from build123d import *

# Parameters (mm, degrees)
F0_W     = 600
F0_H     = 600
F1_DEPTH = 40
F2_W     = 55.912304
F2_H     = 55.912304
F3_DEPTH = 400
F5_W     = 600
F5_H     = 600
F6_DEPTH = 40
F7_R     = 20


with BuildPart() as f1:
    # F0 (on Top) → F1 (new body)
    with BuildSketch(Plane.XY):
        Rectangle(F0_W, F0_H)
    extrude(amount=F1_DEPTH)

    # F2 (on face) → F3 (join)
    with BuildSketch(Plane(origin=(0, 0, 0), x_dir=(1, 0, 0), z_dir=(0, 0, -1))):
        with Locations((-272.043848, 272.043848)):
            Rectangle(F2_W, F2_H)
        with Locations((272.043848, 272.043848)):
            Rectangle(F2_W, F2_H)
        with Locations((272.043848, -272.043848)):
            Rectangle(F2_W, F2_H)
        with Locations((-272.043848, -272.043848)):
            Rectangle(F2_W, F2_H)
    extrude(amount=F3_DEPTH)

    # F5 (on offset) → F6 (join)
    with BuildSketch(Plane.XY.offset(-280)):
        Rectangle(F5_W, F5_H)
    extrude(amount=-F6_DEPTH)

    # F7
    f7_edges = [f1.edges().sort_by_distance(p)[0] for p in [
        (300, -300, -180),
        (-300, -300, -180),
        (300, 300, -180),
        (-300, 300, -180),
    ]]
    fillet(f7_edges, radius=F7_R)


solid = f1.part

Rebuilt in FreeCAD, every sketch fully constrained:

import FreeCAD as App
import Part
import Sketcher

V = App.Vector
Q = App.Units.Quantity


def edges_at(feature, points):
    """Names of the edges that pass closest to the given points."""
    edges = feature.Shape.Edges
    near = lambda p: min(range(len(edges)), key=lambda i: edges[i].distToShape(Part.Vertex(*p))[0])
    return sorted({f"Edge{near(p) + 1}" for p in points})

doc = App.newDocument("Part")
body = doc.addObject("PartDesign::Body", "Body")

# Sketch on XY plane
sketch1 = body.newObject("Sketcher::SketchObject", "Sketch")
sketch1.AttachmentSupport = (doc.getObject("XY_Plane"), [""])
sketch1.MapMode = "FlatFace"
sketch1.addGeometry([
    Part.LineSegment(V(-300, 300, 0), V(-300, -300, 0)),
    Part.LineSegment(V(-300, -300, 0), V(300, -300, 0)),
    Part.LineSegment(V(300, -300, 0), V(300, 300, 0)),
    Part.LineSegment(V(300, 300, 0), V(-300, 300, 0)),
], False)
sketch1.addConstraint([
    Sketcher.Constraint("Coincident", 0, 2, 1, 1),
    Sketcher.Constraint("Coincident", 1, 2, 2, 1),
    Sketcher.Constraint("Coincident", 2, 2, 3, 1),
    Sketcher.Constraint("Coincident", 3, 2, 0, 1),
    Sketcher.Constraint("Vertical", 0),
    Sketcher.Constraint("Horizontal", 1),
    Sketcher.Constraint("Vertical", 2),
    Sketcher.Constraint("Horizontal", 3),
    Sketcher.Constraint("Symmetric", 0, 2, 2, 2, -1, 1),
    Sketcher.Constraint("Equal", 3, 0),
    Sketcher.Constraint("DistanceX", 1, 1, 1, 2, Q("600 mm")),
])
pad1 = body.newObject("PartDesign::Pad", "Pad")
pad1.Profile = sketch1
pad1.Length = 40

# Sketch on XY plane
sketch2 = body.newObject("Sketcher::SketchObject", "Sketch001")
sketch2.AttachmentSupport = (doc.getObject("XY_Plane"), [""])
sketch2.MapMode = "FlatFace"
sketch2.addGeometry([
    Part.LineSegment(V(-300, -300, 0), V(-300, -244.087696, 0)),  # 0
    Part.LineSegment(V(-300, -244.087696, 0), V(-244.087696, -244.087696, 0)),  # 1
    Part.LineSegment(V(-244.087696, -244.087696, 0), V(-244.087696, -300, 0)),  # 2
    Part.LineSegment(V(-244.087696, -300, 0), V(-300, -300, 0)),  # 3
    Part.LineSegment(V(244.087696, -300, 0), V(244.087696, -244.087696, 0)),  # 4
    Part.LineSegment(V(244.087696, -244.087696, 0), V(300, -244.087696, 0)),  # 5
    Part.LineSegment(V(300, -244.087696, 0), V(300, -300, 0)),  # 6
    Part.LineSegment(V(300, -300, 0), V(244.087696, -300, 0)),  # 7
    Part.LineSegment(V(244.087696, 244.087696, 0), V(244.087696, 300, 0)),  # 8
    Part.LineSegment(V(244.087696, 300, 0), V(300, 300, 0)),  # 9
    Part.LineSegment(V(300, 300, 0), V(300, 244.087696, 0)),  # 10
    Part.LineSegment(V(300, 244.087696, 0), V(244.087696, 244.087696, 0)),  # 11
    Part.LineSegment(V(-300, 244.087696, 0), V(-300, 300, 0)),  # 12
    Part.LineSegment(V(-300, 300, 0), V(-244.087696, 300, 0)),  # 13
    Part.LineSegment(V(-244.087696, 300, 0), V(-244.087696, 244.087696, 0)),  # 14
    Part.LineSegment(V(-244.087696, 244.087696, 0), V(-300, 244.087696, 0)),  # 15
], False)
sketch2.addConstraint([
    Sketcher.Constraint("Coincident", 0, 2, 1, 1),
    Sketcher.Constraint("Coincident", 1, 2, 2, 1),
    Sketcher.Constraint("Coincident", 2, 2, 3, 1),
    Sketcher.Constraint("Coincident", 3, 2, 0, 1),
    Sketcher.Constraint("Coincident", 4, 2, 5, 1),
    Sketcher.Constraint("Coincident", 5, 2, 6, 1),
    Sketcher.Constraint("Coincident", 6, 2, 7, 1),
    Sketcher.Constraint("Coincident", 7, 2, 4, 1),
    Sketcher.Constraint("Coincident", 8, 2, 9, 1),
    Sketcher.Constraint("Coincident", 9, 2, 10, 1),
    Sketcher.Constraint("Coincident", 10, 2, 11, 1),
    Sketcher.Constraint("Coincident", 11, 2, 8, 1),
    Sketcher.Constraint("Coincident", 12, 2, 13, 1),
    Sketcher.Constraint("Coincident", 13, 2, 14, 1),
    Sketcher.Constraint("Coincident", 14, 2, 15, 1),
    Sketcher.Constraint("Coincident", 15, 2, 12, 1),
    Sketcher.Constraint("Vertical", 0),
    Sketcher.Constraint("Horizontal", 1),
    Sketcher.Constraint("Vertical", 2),
    Sketcher.Constraint("Horizontal", 3),
    Sketcher.Constraint("Vertical", 4),
    Sketcher.Constraint("Horizontal", 5),
    Sketcher.Constraint("Vertical", 6),
    Sketcher.Constraint("Horizontal", 7),
    Sketcher.Constraint("Vertical", 8),
    Sketcher.Constraint("Horizontal", 9),
    Sketcher.Constraint("Vertical", 10),
    Sketcher.Constraint("Horizontal", 11),
    Sketcher.Constraint("Vertical", 12),
    Sketcher.Constraint("Horizontal", 13),
    Sketcher.Constraint("Vertical", 14),
    Sketcher.Constraint("Horizontal", 15),
    Sketcher.Constraint("Symmetric", 2, 2, 8, 2, -1, 1),
    Sketcher.Constraint("Symmetric", 0, 2, 10, 2, -1, 1),
    Sketcher.Constraint("Symmetric", 6, 2, 12, 2, -1, 1),
    Sketcher.Constraint("Symmetric", 4, 2, 14, 2, -1, 1),
    Sketcher.Constraint("Symmetric", 1, 2, 4, 2, -2),
    Sketcher.Constraint("Symmetric", 3, 2, 6, 2, -2),
    Sketcher.Constraint("Equal", 15, 0),
    Sketcher.Constraint("DistanceX", 0, 2, -1, 1, Q("300 mm")),
    Sketcher.Constraint("DistanceY", 2, 2, -1, 1, Q("300 mm")),
    Sketcher.Constraint("DistanceX", 1, 1, 1, 2, Q("55.912304 mm")),
])
pad2 = body.newObject("PartDesign::Pad", "Pad001")
pad2.Profile = sketch2
pad2.Length = 400
pad2.Reversed = True

# Sketch on XY plane
sketch3 = body.newObject("Sketcher::SketchObject", "Sketch002")
sketch3.AttachmentSupport = (doc.getObject("XY_Plane"), [""])
sketch3.MapMode = "FlatFace"
sketch3.AttachmentOffset = App.Placement(V(0, 0, -280), App.Rotation())
sketch3.addGeometry([
    Part.LineSegment(V(-300, 300, 0), V(-300, -300, 0)),
    Part.LineSegment(V(-300, -300, 0), V(300, -300, 0)),
    Part.LineSegment(V(300, -300, 0), V(300, 300, 0)),
    Part.LineSegment(V(300, 300, 0), V(-300, 300, 0)),
], False)
sketch3.addConstraint([
    Sketcher.Constraint("Coincident", 0, 2, 1, 1),
    Sketcher.Constraint("Coincident", 1, 2, 2, 1),
    Sketcher.Constraint("Coincident", 2, 2, 3, 1),
    Sketcher.Constraint("Coincident", 3, 2, 0, 1),
    Sketcher.Constraint("Vertical", 0),
    Sketcher.Constraint("Horizontal", 1),
    Sketcher.Constraint("Vertical", 2),
    Sketcher.Constraint("Horizontal", 3),
    Sketcher.Constraint("Symmetric", 0, 2, 2, 2, -1, 1),
    Sketcher.Constraint("Equal", 3, 0),
    Sketcher.Constraint("DistanceX", 1, 1, 1, 2, Q("600 mm")),
])
pad3 = body.newObject("PartDesign::Pad", "Pad002")
pad3.Profile = sketch3
pad3.Length = 40
pad3.Reversed = True
doc.recompute()

fillet = body.newObject("PartDesign::Fillet", "Fillet")
fillet.Base = (pad3, edges_at(pad3, [
    (300, -300, -180),
    (-300, -300, -180),
    (300, 300, -180),
    (-300, 300, -180),
]))
fillet.Radius = 20

doc.recompute()
